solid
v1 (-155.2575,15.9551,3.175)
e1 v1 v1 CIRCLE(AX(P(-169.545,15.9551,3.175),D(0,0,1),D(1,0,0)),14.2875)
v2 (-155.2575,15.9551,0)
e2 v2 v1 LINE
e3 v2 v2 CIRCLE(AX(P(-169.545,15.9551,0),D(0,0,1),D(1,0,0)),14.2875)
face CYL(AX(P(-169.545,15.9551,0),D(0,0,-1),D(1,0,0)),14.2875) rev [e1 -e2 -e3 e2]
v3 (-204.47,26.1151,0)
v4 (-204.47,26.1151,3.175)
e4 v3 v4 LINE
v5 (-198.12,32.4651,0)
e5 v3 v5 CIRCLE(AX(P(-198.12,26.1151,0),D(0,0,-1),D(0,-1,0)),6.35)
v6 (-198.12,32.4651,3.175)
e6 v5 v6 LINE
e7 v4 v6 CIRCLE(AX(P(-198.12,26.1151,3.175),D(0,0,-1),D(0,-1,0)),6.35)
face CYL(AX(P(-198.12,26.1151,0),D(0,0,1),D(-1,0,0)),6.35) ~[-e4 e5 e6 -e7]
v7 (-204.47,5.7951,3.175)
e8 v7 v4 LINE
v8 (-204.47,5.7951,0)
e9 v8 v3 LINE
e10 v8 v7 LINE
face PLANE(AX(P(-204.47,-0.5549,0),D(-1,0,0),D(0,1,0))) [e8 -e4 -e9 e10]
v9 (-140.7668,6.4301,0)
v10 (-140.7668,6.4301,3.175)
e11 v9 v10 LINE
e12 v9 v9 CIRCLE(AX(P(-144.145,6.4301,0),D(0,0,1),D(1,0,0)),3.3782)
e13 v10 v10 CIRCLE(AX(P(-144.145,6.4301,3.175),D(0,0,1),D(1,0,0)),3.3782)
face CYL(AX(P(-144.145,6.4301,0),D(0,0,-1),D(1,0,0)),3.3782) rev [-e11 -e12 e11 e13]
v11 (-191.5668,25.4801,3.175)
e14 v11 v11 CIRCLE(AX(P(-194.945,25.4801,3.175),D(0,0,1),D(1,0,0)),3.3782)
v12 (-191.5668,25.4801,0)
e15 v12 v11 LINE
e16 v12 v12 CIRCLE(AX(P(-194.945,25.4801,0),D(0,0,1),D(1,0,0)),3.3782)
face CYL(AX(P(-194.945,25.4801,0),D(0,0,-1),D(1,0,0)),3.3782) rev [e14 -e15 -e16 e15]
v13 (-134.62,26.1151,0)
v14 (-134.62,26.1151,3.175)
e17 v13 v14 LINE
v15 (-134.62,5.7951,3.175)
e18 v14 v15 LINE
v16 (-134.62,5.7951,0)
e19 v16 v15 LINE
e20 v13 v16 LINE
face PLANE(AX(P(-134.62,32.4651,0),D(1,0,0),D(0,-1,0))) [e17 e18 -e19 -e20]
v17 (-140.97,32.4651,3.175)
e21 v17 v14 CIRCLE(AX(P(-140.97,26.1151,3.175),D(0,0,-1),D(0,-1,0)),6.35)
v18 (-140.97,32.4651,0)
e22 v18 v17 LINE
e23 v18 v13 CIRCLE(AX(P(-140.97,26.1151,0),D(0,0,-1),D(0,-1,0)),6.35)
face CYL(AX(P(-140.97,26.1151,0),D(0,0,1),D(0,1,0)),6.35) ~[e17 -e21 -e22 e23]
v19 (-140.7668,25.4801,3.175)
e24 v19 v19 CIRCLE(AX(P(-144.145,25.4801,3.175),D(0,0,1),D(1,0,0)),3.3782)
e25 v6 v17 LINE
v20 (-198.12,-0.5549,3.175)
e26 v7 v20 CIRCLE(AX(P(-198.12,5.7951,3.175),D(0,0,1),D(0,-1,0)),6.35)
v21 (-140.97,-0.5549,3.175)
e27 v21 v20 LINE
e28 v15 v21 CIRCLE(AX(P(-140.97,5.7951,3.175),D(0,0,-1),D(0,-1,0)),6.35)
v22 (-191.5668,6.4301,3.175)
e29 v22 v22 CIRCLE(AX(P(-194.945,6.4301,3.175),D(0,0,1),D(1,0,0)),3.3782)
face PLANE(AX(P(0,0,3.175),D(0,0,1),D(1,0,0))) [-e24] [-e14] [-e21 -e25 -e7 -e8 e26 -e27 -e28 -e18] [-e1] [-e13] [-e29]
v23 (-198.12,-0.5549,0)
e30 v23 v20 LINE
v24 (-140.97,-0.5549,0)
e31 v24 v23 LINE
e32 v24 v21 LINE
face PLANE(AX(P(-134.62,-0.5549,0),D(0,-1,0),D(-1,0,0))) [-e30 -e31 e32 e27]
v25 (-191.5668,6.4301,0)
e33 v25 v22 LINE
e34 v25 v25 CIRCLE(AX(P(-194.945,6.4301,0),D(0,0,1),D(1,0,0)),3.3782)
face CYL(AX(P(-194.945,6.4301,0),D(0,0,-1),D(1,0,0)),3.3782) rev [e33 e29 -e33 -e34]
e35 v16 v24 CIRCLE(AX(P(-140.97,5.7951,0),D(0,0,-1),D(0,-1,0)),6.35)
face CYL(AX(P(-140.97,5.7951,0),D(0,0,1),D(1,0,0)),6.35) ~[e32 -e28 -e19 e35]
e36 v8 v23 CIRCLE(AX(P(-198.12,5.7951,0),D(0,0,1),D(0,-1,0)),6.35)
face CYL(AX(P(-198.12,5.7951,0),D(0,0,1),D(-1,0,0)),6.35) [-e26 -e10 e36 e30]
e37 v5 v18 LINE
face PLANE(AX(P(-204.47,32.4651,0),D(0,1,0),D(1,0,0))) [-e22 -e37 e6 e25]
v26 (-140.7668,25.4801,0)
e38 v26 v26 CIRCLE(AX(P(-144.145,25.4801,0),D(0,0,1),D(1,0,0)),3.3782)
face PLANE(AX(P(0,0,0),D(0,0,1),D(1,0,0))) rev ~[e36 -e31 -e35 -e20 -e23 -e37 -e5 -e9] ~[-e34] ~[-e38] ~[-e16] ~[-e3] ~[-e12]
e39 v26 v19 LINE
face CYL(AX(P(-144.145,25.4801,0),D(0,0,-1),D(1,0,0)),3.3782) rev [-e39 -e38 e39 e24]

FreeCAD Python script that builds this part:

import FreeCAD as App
import Part
import Sketcher
Q = App.Units.Quantity


def edges_at(feature, points):
    """Names of the edges that pass closest to the given points."""
    edges = feature.Shape.Edges
    near = lambda p: min(range(len(edges)), key=lambda i: edges[i].distToShape(Part.Vertex(*p))[0])
    return sorted({f"Edge{near(p) + 1}" for p in points})

doc = App.newDocument("Part")
body = doc.addObject("PartDesign::Body", "Body")

# Sketch on XY plane
sketch1 = doc.addObject("Sketcher::SketchObject", "Sketch")
body.addObject(sketch1)
sketch1.AttachmentSupport = (doc.XY_Plane, [""])
sketch1.MapMode = "FlatFace"
sketch1.addGeometry([
    Part.LineSegment(App.Vector(-204.47, 32.4651, 0), App.Vector(-204.47, -0.5549, 0)),  # 0
    Part.LineSegment(App.Vector(-204.47, -0.5549, 0), App.Vector(-134.62, -0.5549, 0)),  # 1
    Part.LineSegment(App.Vector(-134.62, -0.5549, 0), App.Vector(-134.62, 32.4651, 0)),  # 2
    Part.LineSegment(App.Vector(-134.62, 32.4651, 0), App.Vector(-204.47, 32.4651, 0)),  # 3
    Part.Circle(App.Vector(-194.945, 6.4301, 0), App.Vector(0, 0, 1), 3.3782),  # 4
    Part.Circle(App.Vector(-144.145, 6.4301, 0), App.Vector(0, 0, 1), 3.3782),  # 5
    Part.Circle(App.Vector(-194.945, 25.4801, 0), App.Vector(0, 0, 1), 3.3782),  # 6
    Part.Circle(App.Vector(-169.545, 15.9551, 0), App.Vector(0, 0, 1), 14.2875),  # 7
    Part.Circle(App.Vector(-144.145, 25.4801, 0), App.Vector(0, 0, 1), 3.3782),  # 8
], False)
sketch1.addConstraint([
    Sketcher.Constraint("Coincident", 0, 2, 1, 1),
    Sketcher.Constraint("Coincident", 1, 2, 2, 1),
    Sketcher.Constraint("Coincident", 2, 2, 3, 1),
    Sketcher.Constraint("Coincident", 3, 2, 0, 1),
    Sketcher.Constraint("Vertical", 0),
    Sketcher.Constraint("Horizontal", 1),
    Sketcher.Constraint("Vertical", 2),
    Sketcher.Constraint("Horizontal", 3),
    Sketcher.Constraint("Equal", 4, 5),
    Sketcher.Constraint("Equal", 5, 6),
    Sketcher.Constraint("Equal", 6, 8),
    Sketcher.Constraint("Horizontal", 4, 3, 5, 3),
    Sketcher.Constraint("Horizontal", 6, 3, 8, 3),
    Sketcher.Constraint("Vertical", 4, 3, 6, 3),
    Sketcher.Constraint("Vertical", 5, 3, 8, 3),
    Sketcher.Constraint("Diameter", 4, Q("0.266 in")),
    Sketcher.Constraint("Diameter", 7, Q("1.125 in")),
    Sketcher.Constraint("DistanceY", 0, 2, 0, 1, Q("1.3 in")),
    Sketcher.Constraint("DistanceX", 4, 3, 5, 3, Q("2 in")),
    Sketcher.Constraint("DistanceX", 7, 3, 5, 3, Q("1 in")),
    Sketcher.Constraint("DistanceX", 1, 1, 1, 2, Q("2.75 in")),
    Sketcher.Constraint("DistanceX", 1, 2, -1, 1, Q("5.3 in")),
    Sketcher.Constraint("DistanceY", 4, 3, 6, 3, Q("0.75 in")),
    Sketcher.Constraint("DistanceY", 0, 2, 7, 3, Q("0.65 in")),
    Sketcher.Constraint("DistanceX", 4, 3, -1, 1, Q("7.675 in")),
    Sketcher.Constraint("DistanceY", 5, 3, 7, 3, Q("0.375 in")),
    Sketcher.Constraint("DistanceY", -1, 1, 4, 3, 6.43),
])
pad1 = doc.addObject("PartDesign::Pad", "Pad")
body.addObject(pad1)
pad1.Profile = sketch1
pad1.Length = Q("0.125 in")
doc.recompute()

fillet = doc.addObject("PartDesign::Fillet", "Fillet")
body.addObject(fillet)
fillet.Base = (pad1, edges_at(pad1, [
    (-204.47, 32.465, 1.587),
    (-204.47, -0.555, 1.587),
    (-134.62, 32.465, 1.587),
    (-134.62, -0.555, 1.587),
]))
fillet.Radius = Q("0.25 in")

doc.recompute()
